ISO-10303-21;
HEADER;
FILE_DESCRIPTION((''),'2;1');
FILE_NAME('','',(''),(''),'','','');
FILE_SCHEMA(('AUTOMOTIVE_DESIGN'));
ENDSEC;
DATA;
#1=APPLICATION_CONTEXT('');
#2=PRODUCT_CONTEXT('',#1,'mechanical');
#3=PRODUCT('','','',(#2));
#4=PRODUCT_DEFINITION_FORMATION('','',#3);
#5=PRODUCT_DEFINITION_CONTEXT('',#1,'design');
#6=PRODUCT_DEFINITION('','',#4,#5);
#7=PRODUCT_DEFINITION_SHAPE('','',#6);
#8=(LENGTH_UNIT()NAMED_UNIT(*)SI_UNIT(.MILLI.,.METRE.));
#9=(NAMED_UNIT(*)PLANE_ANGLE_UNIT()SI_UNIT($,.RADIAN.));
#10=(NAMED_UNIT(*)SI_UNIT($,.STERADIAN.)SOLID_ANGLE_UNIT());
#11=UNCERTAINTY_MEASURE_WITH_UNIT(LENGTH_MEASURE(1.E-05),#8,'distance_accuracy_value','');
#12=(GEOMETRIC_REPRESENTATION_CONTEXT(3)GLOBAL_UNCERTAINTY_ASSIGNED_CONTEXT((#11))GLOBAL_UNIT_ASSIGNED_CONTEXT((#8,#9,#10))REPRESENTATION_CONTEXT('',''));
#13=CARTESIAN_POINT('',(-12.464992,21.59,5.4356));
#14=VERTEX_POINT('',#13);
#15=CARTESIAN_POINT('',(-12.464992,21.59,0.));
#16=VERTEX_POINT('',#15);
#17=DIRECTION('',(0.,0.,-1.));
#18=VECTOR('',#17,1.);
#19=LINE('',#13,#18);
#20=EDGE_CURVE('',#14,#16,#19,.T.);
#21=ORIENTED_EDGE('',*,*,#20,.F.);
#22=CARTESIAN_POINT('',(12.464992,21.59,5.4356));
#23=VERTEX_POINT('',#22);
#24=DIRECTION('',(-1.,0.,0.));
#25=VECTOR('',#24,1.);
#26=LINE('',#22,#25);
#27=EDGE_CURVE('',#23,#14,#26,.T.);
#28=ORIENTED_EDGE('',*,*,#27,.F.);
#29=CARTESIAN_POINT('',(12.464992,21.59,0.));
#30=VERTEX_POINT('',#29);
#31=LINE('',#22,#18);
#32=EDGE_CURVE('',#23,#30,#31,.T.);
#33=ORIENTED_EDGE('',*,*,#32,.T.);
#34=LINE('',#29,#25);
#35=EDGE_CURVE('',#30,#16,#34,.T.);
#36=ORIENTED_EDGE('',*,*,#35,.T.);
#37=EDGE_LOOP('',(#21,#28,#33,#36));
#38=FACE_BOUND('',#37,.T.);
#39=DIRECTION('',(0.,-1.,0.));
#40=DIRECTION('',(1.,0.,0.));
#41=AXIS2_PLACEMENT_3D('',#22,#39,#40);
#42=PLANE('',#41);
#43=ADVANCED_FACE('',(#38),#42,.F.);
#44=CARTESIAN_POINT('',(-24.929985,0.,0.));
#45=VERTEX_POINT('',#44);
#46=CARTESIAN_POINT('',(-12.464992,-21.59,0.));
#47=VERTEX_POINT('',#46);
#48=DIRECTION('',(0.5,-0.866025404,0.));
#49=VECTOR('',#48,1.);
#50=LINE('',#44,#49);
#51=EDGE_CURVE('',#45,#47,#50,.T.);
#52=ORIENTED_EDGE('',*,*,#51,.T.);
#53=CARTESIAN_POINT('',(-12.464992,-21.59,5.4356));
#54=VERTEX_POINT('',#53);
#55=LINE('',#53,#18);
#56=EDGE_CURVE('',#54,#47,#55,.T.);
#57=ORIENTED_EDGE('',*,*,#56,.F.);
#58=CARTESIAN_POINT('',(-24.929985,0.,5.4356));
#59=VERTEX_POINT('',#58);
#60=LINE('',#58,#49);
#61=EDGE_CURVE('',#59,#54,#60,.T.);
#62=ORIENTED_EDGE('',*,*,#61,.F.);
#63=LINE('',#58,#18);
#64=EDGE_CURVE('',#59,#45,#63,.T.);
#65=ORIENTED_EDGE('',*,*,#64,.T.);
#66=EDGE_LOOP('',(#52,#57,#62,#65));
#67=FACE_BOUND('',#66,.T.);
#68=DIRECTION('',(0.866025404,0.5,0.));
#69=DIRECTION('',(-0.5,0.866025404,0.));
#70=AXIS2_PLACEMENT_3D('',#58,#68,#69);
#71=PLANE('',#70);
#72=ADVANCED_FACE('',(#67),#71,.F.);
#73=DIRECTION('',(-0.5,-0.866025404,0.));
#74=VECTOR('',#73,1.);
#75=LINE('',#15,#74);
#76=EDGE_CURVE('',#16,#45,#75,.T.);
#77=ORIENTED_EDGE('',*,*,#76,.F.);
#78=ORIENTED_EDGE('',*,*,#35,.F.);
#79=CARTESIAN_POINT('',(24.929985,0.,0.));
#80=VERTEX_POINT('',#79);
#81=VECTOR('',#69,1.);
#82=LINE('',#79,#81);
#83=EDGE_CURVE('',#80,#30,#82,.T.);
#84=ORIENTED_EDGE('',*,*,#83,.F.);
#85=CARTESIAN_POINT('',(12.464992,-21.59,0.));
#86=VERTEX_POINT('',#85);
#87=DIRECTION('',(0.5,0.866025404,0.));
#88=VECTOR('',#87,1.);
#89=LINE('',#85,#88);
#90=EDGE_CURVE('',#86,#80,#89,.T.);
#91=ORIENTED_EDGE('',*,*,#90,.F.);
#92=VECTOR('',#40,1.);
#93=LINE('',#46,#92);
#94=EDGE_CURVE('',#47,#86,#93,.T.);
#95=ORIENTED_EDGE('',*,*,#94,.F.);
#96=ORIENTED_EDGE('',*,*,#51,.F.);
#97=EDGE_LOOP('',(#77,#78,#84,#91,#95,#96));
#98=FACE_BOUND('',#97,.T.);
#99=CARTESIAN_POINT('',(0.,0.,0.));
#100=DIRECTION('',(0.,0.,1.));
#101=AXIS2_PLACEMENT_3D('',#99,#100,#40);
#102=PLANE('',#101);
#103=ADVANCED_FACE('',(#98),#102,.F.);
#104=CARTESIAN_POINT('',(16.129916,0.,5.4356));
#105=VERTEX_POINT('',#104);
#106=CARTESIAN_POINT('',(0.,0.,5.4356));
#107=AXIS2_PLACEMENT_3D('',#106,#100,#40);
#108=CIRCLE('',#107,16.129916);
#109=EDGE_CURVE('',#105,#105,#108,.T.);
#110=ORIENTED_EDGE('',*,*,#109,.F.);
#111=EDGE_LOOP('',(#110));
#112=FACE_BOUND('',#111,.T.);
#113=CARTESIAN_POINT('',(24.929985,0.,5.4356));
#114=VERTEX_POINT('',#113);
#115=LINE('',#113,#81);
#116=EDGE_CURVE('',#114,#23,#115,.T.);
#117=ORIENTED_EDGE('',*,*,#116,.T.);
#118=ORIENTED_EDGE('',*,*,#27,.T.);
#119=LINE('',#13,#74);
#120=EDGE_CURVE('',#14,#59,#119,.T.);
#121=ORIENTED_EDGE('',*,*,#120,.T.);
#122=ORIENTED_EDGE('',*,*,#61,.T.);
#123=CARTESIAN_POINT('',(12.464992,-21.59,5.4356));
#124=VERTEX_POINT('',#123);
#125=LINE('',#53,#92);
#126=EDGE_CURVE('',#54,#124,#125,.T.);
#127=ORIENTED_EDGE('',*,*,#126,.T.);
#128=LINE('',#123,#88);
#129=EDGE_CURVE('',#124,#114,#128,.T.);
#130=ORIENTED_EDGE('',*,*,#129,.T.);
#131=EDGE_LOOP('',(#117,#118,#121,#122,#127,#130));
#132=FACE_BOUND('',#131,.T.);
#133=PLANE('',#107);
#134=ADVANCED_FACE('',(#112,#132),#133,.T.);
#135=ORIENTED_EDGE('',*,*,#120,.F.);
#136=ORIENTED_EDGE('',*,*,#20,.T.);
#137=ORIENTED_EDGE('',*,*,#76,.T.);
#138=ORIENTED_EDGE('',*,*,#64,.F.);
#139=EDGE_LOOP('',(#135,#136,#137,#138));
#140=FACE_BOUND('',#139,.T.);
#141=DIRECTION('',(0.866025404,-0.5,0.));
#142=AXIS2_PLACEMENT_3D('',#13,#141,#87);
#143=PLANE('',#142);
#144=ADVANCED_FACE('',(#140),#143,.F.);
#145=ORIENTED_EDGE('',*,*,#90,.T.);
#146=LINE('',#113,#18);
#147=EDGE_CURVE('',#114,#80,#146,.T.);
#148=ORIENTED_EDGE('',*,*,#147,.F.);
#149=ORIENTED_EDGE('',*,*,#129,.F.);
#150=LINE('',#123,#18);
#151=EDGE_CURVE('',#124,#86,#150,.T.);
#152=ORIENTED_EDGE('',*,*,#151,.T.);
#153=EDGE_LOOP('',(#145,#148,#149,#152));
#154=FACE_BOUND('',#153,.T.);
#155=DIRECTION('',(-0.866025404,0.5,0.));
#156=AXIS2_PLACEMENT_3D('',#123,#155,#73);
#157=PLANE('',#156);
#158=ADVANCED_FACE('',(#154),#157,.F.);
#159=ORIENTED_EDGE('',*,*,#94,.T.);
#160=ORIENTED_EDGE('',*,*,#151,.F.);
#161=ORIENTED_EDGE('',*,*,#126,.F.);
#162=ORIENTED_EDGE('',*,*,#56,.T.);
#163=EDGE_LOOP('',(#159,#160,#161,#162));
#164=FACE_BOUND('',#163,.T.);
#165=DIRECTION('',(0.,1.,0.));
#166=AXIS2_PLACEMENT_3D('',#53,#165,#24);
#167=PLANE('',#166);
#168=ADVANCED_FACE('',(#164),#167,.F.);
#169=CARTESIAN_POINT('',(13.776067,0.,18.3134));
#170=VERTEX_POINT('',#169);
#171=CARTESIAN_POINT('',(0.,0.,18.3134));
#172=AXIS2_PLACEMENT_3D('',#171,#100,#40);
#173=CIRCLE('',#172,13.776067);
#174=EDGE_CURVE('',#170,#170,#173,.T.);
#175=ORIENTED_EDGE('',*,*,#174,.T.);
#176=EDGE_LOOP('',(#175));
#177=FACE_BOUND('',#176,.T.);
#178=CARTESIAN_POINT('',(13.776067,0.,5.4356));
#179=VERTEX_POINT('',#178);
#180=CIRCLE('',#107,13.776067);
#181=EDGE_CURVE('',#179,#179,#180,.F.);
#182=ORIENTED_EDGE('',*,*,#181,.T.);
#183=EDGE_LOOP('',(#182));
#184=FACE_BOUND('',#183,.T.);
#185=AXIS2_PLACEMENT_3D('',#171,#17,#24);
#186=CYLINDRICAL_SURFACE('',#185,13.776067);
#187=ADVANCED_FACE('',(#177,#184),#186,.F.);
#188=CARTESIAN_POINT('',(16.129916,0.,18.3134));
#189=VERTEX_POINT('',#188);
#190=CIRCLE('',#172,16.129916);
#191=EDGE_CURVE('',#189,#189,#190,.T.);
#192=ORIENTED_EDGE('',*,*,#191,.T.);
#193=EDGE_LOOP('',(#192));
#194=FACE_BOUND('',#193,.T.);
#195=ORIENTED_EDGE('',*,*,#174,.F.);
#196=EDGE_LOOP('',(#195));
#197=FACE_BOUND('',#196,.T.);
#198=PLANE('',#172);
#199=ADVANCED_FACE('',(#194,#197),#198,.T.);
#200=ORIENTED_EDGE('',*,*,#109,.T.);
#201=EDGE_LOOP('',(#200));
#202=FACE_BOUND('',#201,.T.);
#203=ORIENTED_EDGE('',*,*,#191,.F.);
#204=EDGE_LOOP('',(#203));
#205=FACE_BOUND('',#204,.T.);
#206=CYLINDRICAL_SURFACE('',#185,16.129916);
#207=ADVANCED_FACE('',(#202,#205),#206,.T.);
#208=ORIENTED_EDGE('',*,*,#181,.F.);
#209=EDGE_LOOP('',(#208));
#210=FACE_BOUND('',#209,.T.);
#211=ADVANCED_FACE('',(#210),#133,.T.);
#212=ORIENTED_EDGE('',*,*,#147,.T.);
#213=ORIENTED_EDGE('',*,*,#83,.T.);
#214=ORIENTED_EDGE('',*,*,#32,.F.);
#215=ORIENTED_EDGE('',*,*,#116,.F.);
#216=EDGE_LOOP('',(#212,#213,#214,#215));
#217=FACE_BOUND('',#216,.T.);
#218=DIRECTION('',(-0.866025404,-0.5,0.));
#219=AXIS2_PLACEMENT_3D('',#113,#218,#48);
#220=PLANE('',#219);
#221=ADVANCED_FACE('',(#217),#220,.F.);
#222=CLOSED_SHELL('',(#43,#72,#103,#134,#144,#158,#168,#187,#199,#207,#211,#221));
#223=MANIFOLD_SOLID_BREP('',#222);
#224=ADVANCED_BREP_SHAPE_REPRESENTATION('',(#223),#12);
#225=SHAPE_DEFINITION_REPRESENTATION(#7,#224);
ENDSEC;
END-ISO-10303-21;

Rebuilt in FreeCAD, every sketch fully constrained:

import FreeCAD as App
import Part
import Sketcher
Q = App.Units.Quantity

doc = App.newDocument("Part")
body = doc.addObject("PartDesign::Body", "Body")

sketch1 = doc.addObject("Sketcher::SketchObject", "Sketch")
body.addObject(sketch1)
sketch1.AttachmentSupport = (doc.XY_Plane, [""])
sketch1.MapMode = "FlatFace"
sketch1.addGeometry([
    Part.LineSegment(App.Vector(12, 22, 0), App.Vector(-12, 22, 0)),
    Part.LineSegment(App.Vector(-12, 22, 0), App.Vector(-25, 0, 0)),
    Part.LineSegment(App.Vector(-25, 0, 0), App.Vector(-12, -22, 0)),
    Part.LineSegment(App.Vector(-12, -22, 0), App.Vector(12, -22, 0)),
    Part.LineSegment(App.Vector(12, -22, 0), App.Vector(25, 0, 0)),
    Part.LineSegment(App.Vector(25, 0, 0), App.Vector(12, 22, 0)),
], False)
sketch1.addConstraint([
    Sketcher.Constraint("Coincident", 0, 2, 1, 1),
    Sketcher.Constraint("Coincident", 1, 2, 2, 1),
    Sketcher.Constraint("Coincident", 2, 2, 3, 1),
    Sketcher.Constraint("Coincident", 3, 2, 4, 1),
    Sketcher.Constraint("Coincident", 4, 2, 5, 1),
    Sketcher.Constraint("Coincident", 5, 2, 0, 1),
    Sketcher.Constraint("Horizontal", 0),
    Sketcher.Constraint("Horizontal", 3),
    Sketcher.Constraint("Symmetric", 0, 2, 3, 2, -1, 1),
    Sketcher.Constraint("Symmetric", 1, 2, 4, 2, -1, 1),
    Sketcher.Constraint("PointOnObject", 1, 2, -1),
    Sketcher.Constraint("Parallel", 2, 5),
    Sketcher.Constraint("Vertical", 0, 2, 2, 2),
    Sketcher.Constraint("Angle", 1, Q("-120 deg")),
    Sketcher.Constraint("DistanceY", 2, 2, 0, 2, Q("1.7 in")),
    Sketcher.Constraint("DistanceX", 0, 2, 0, 1, 24.929985),
])
pad1 = doc.addObject("PartDesign::Pad", "Pad")
body.addObject(pad1)
pad1.Profile = sketch1
pad1.Length = Q("0.214 in")

sketch2 = doc.addObject("Sketcher::SketchObject", "Sketch001")
body.addObject(sketch2)
sketch2.AttachmentSupport = (doc.XY_Plane, [""])
sketch2.MapMode = "FlatFace"
sketch2.AttachmentOffset = App.Placement(App.Vector(0, 0, 0.214 * 25.4), App.Rotation())
sketch2.addGeometry([
    Part.Circle(App.Vector(0, 0, 0), App.Vector(0, 0, 1), 16),
    Part.Circle(App.Vector(0, 0, 0), App.Vector(0, 0, 1), 14),
], False)
sketch2.addConstraint([
    Sketcher.Constraint("Coincident", 0, 3, -1, 1),
    Sketcher.Constraint("Coincident", 1, 3, -1, 1),
    Sketcher.Constraint("Diameter", 0, 32.259833),
    Sketcher.Constraint("Diameter", 1, 27.552135),
])
pad2 = doc.addObject("PartDesign::Pad", "Pad001")
body.addObject(pad2)
pad2.Profile = sketch2
pad2.Length = Q("0.507 in")

doc.recompute()
